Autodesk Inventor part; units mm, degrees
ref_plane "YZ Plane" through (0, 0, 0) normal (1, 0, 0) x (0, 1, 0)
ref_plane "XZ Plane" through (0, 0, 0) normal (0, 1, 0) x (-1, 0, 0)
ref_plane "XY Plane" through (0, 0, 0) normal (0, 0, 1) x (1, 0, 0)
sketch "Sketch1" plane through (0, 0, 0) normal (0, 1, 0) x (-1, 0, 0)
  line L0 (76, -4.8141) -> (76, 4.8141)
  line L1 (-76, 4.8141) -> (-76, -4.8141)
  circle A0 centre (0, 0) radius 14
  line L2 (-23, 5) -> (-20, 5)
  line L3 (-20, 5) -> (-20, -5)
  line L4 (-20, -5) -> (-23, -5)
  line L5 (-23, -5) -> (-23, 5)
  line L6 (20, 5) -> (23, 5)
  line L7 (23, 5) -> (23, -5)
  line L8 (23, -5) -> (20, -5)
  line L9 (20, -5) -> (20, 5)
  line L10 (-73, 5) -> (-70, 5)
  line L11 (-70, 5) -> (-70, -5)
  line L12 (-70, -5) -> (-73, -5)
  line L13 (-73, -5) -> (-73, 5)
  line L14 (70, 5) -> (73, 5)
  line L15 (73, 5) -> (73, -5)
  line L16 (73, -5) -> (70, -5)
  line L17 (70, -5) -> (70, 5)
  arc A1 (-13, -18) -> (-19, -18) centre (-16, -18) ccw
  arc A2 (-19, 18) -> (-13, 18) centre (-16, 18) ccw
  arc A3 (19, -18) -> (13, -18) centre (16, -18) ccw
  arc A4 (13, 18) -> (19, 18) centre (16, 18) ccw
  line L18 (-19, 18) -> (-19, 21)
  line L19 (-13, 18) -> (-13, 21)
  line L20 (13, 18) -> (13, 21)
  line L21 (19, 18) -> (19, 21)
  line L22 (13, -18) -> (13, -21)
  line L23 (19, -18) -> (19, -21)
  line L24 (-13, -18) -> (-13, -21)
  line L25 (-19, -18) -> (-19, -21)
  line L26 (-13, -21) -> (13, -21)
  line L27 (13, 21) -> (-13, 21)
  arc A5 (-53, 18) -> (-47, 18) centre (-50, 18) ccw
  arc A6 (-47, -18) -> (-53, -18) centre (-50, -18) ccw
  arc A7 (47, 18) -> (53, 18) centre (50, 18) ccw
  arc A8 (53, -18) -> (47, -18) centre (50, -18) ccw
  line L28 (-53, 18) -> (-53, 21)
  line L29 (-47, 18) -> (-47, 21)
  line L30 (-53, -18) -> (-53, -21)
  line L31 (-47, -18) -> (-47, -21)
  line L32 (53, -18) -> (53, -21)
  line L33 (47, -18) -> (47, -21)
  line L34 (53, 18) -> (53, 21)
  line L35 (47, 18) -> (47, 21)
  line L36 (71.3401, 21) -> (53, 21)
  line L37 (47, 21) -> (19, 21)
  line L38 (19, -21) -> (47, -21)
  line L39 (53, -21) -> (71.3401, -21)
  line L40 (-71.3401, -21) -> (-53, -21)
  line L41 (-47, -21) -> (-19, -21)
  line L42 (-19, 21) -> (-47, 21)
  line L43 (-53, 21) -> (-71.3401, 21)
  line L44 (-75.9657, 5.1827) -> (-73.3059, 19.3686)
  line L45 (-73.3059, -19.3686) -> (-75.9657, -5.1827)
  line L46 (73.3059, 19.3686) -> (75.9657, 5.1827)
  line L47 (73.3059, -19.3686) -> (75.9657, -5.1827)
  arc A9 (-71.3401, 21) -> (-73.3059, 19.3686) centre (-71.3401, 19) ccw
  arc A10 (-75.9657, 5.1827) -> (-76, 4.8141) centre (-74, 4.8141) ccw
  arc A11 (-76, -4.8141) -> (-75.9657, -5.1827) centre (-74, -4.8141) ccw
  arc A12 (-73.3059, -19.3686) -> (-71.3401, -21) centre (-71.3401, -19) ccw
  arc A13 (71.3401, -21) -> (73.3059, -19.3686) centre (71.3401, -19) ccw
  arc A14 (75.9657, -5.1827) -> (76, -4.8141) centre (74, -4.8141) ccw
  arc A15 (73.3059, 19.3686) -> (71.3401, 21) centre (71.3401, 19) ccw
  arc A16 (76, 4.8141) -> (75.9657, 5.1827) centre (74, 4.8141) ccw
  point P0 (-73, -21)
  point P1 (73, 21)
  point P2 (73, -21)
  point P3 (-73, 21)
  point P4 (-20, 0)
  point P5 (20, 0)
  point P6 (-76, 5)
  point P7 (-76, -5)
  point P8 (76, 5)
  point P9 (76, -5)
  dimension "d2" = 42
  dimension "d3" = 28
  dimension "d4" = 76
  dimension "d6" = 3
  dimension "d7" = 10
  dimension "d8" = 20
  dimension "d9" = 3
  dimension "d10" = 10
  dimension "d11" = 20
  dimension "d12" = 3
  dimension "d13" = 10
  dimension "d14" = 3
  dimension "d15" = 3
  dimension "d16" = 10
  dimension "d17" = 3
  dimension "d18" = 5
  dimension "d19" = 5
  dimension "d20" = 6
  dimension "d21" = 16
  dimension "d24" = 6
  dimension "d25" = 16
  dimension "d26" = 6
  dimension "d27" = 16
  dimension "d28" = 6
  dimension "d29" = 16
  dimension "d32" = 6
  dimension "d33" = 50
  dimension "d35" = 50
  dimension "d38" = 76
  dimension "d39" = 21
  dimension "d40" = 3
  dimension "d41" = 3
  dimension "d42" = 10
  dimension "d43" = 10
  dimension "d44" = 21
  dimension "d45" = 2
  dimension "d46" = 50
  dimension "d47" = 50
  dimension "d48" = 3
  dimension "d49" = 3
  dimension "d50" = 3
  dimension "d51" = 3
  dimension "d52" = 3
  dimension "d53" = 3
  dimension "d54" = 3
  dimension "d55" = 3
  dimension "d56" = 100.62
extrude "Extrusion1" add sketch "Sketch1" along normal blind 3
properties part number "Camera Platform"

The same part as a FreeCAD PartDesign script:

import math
import FreeCAD as App
import Part
import Sketcher
from FreeCAD import Vector
Q = App.Units.Quantity

doc = App.newDocument("Part")
body = doc.addObject("PartDesign::Body", "Body")

# Sketch on XZ plane
sketch1 = body.newObject("Sketcher::SketchObject", "Sketch")
sketch1.AttachmentSupport = (doc.getObject("XZ_Plane"), [""])
sketch1.MapMode = "FlatFace"
sketch1.addGeometry(Part.ArcOfCircle(Part.Circle(Vector(-73.99544, -4.813462, 0), Vector(0, 0, 1), 2.00456), math.radians(-179.981764), math.radians(-169.385561)), False)
sketch1.addGeometry(Part.LineSegment(Vector(-76, -4.8141, 0), Vector(-76, 4.8141, 0)), False)
sketch1.addGeometry(Part.ArcOfCircle(Part.Circle(Vector(-74.004578, 4.814312, 0), Vector(0, 0, 1), 1.995422), math.radians(169.361229), math.radians(180.006096)), False)
sketch1.addGeometry(Part.LineSegment(Vector(-75.9657, 5.1827, 0), Vector(-73.3059, 19.3686, 0)), False)
sketch1.addGeometry(Part.ArcOfCircle(Part.Circle(Vector(-71.3401, 19, 0), Vector(0, 0, 1), 2.000059), math.radians(90), math.radians(169.379993)), False)
sketch1.addGeometry(Part.LineSegment(Vector(-71.3401, 21, 0), Vector(-53, 21, 0)), False)
sketch1.addGeometry(Part.LineSegment(Vector(-53, 21, 0), Vector(-53, 18, 0)), False)
sketch1.addGeometry(Part.ArcOfCircle(Part.Circle(Vector(-50, 18, 0), Vector(0, 0, 1), 3), math.radians(180), math.radians(360)), False)
sketch1.addGeometry(Part.LineSegment(Vector(-47, 18, 0), Vector(-47, 21, 0)), False)
sketch1.addGeometry(Part.LineSegment(Vector(-47, 21, 0), Vector(-19, 21, 0)), False)
sketch1.addGeometry(Part.LineSegment(Vector(-19, 21, 0), Vector(-19, 18, 0)), False)
sketch1.addGeometry(Part.ArcOfCircle(Part.Circle(Vector(-16, 18, 0), Vector(0, 0, 1), 3), math.radians(180), math.radians(360)), False)
sketch1.addGeometry(Part.LineSegment(Vector(-13, 18, 0), Vector(-13, 21, 0)), False)
sketch1.addGeometry(Part.LineSegment(Vector(-13, 21, 0), Vector(13, 21, 0)), False)
sketch1.addGeometry(Part.LineSegment(Vector(13, 21, 0), Vector(13, 18, 0)), False)
sketch1.addGeometry(Part.ArcOfCircle(Part.Circle(Vector(16, 18, 0), Vector(0, 0, 1), 3), math.radians(180), math.radians(360)), False)
sketch1.addGeometry(Part.LineSegment(Vector(19, 18, 0), Vector(19, 21, 0)), False)
sketch1.addGeometry(Part.LineSegment(Vector(19, 21, 0), Vector(47, 21, 0)), False)
sketch1.addGeometry(Part.LineSegment(Vector(47, 21, 0), Vector(47, 18, 0)), False)
sketch1.addGeometry(Part.ArcOfCircle(Part.Circle(Vector(50, 18, 0), Vector(0, 0, 1), 3), math.radians(180), math.radians(360)), False)
sketch1.addGeometry(Part.LineSegment(Vector(53, 18, 0), Vector(53, 21, 0)), False)
sketch1.addGeometry(Part.LineSegment(Vector(53, 21, 0), Vector(71.3401, 21, 0)), False)
sketch1.addGeometry(Part.ArcOfCircle(Part.Circle(Vector(71.3401, 19, 0), Vector(0, 0, 1), 2), math.radians(10.620007), math.radians(90)), False)
sketch1.addGeometry(Part.LineSegment(Vector(73.3059, 19.3686, 0), Vector(75.9657, 5.1827, 0)), False)
sketch1.addGeometry(Part.ArcOfCircle(Part.Circle(Vector(73.99544, 4.813462, 0), Vector(0, 0, 1), 2.00456), math.radians(0.018236), math.radians(10.614439)), False)
sketch1.addGeometry(Part.LineSegment(Vector(76, 4.8141, 0), Vector(76, -4.8141, 0)), False)
sketch1.addGeometry(Part.ArcOfCircle(Part.Circle(Vector(74.004578, -4.814312, 0), Vector(0, 0, 1), 1.995422), math.radians(-10.638771), math.radians(0.006096)), False)
sketch1.addGeometry(Part.LineSegment(Vector(75.9657, -5.1827, 0), Vector(73.3059, -19.3686, 0)), False)
sketch1.addGeometry(Part.ArcOfCircle(Part.Circle(Vector(71.3401, -19, 0), Vector(0, 0, 1), 2.000059), math.radians(-90), math.radians(-10.620007)), False)
sketch1.addGeometry(Part.LineSegment(Vector(71.3401, -21, 0), Vector(53, -21, 0)), False)
sketch1.addGeometry(Part.LineSegment(Vector(53, -21, 0), Vector(53, -18, 0)), False)
sketch1.addGeometry(Part.ArcOfCircle(Part.Circle(Vector(50, -18, 0), Vector(0, 0, 1), 3), math.radians(0), math.radians(180)), False)
sketch1.addGeometry(Part.LineSegment(Vector(47, -18, 0), Vector(47, -21, 0)), False)
sketch1.addGeometry(Part.LineSegment(Vector(47, -21, 0), Vector(19, -21, 0)), False)
sketch1.addGeometry(Part.LineSegment(Vector(19, -21, 0), Vector(19, -18, 0)), False)
sketch1.addGeometry(Part.ArcOfCircle(Part.Circle(Vector(16, -18, 0), Vector(0, 0, 1), 3), math.radians(0), math.radians(180)), False)
sketch1.addGeometry(Part.LineSegment(Vector(13, -18, 0), Vector(13, -21, 0)), False)
sketch1.addGeometry(Part.LineSegment(Vector(13, -21, 0), Vector(-13, -21, 0)), False)
sketch1.addGeometry(Part.LineSegment(Vector(-13, -21, 0), Vector(-13, -18, 0)), False)
sketch1.addGeometry(Part.ArcOfCircle(Part.Circle(Vector(-16, -18, 0), Vector(0, 0, 1), 3), math.radians(0), math.radians(180)), False)
sketch1.addGeometry(Part.LineSegment(Vector(-19, -18, 0), Vector(-19, -21, 0)), False)
sketch1.addGeometry(Part.LineSegment(Vector(-19, -21, 0), Vector(-47, -21, 0)), False)
sketch1.addGeometry(Part.LineSegment(Vector(-47, -21, 0), Vector(-47, -18, 0)), False)
sketch1.addGeometry(Part.ArcOfCircle(Part.Circle(Vector(-50, -18, 0), Vector(0, 0, 1), 3), math.radians(0), math.radians(180)), False)
sketch1.addGeometry(Part.LineSegment(Vector(-53, -18, 0), Vector(-53, -21, 0)), False)
sketch1.addGeometry(Part.LineSegment(Vector(-53, -21, 0), Vector(-71.3401, -21, 0)), False)
sketch1.addGeometry(Part.ArcOfCircle(Part.Circle(Vector(-71.3401, -19, 0), Vector(0, 0, 1), 2), math.radians(-169.379993), math.radians(-90)), False)
sketch1.addGeometry(Part.LineSegment(Vector(-73.3059, -19.3686, 0), Vector(-75.9657, -5.1827, 0)), False)
sketch1.addGeometry(Part.LineSegment(Vector(73, -5, 0), Vector(73, 5, 0)), False)
sketch1.addGeometry(Part.LineSegment(Vector(73, 5, 0), Vector(70, 5, 0)), False)
sketch1.addGeometry(Part.LineSegment(Vector(70, 5, 0), Vector(70, -5, 0)), False)
sketch1.addGeometry(Part.LineSegment(Vector(70, -5, 0), Vector(73, -5, 0)), False)
sketch1.addGeometry(Part.LineSegment(Vector(23, -5, 0), Vector(23, 5, 0)), False)
sketch1.addGeometry(Part.LineSegment(Vector(23, 5, 0), Vector(20, 5, 0)), False)
sketch1.addGeometry(Part.LineSegment(Vector(20, 5, 0), Vector(20, -5, 0)), False)
sketch1.addGeometry(Part.LineSegment(Vector(20, -5, 0), Vector(23, -5, 0)), False)
sketch1.addGeometry(Part.Circle(Vector(0, 0, 0), Vector(0, 0, 1), 14), False)
sketch1.addGeometry(Part.LineSegment(Vector(-20, -5, 0), Vector(-20, 5, 0)), False)
sketch1.addGeometry(Part.LineSegment(Vector(-20, 5, 0), Vector(-23, 5, 0)), False)
sketch1.addGeometry(Part.LineSegment(Vector(-23, 5, 0), Vector(-23, -5, 0)), False)
sketch1.addGeometry(Part.LineSegment(Vector(-23, -5, 0), Vector(-20, -5, 0)), False)
sketch1.addGeometry(Part.LineSegment(Vector(-70, -5, 0), Vector(-70, 5, 0)), False)
sketch1.addGeometry(Part.LineSegment(Vector(-70, 5, 0), Vector(-73, 5, 0)), False)
sketch1.addGeometry(Part.LineSegment(Vector(-73, 5, 0), Vector(-73, -5, 0)), False)
sketch1.addGeometry(Part.LineSegment(Vector(-73, -5, 0), Vector(-70, -5, 0)), False)
sketch1.addConstraint(Sketcher.Constraint("Coincident", 0, 1, 1, 1))
sketch1.addConstraint(Sketcher.Constraint("Coincident", 1, 2, 2, 2))
sketch1.addConstraint(Sketcher.Constraint("Coincident", 2, 1, 3, 1))
sketch1.addConstraint(Sketcher.Constraint("Coincident", 3, 2, 4, 2))
sketch1.addConstraint(Sketcher.Constraint("Coincident", 4, 1, 5, 1))
sketch1.addConstraint(Sketcher.Constraint("Coincident", 5, 2, 6, 1))
sketch1.addConstraint(Sketcher.Constraint("Coincident", 6, 2, 7, 1))
sketch1.addConstraint(Sketcher.Constraint("Coincident", 7, 2, 8, 1))
sketch1.addConstraint(Sketcher.Constraint("Coincident", 8, 2, 9, 1))
sketch1.addConstraint(Sketcher.Constraint("Coincident", 9, 2, 10, 1))
sketch1.addConstraint(Sketcher.Constraint("Coincident", 10, 2, 11, 1))
sketch1.addConstraint(Sketcher.Constraint("Coincident", 11, 2, 12, 1))
sketch1.addConstraint(Sketcher.Constraint("Coincident", 12, 2, 13, 1))
sketch1.addConstraint(Sketcher.Constraint("Coincident", 13, 2, 14, 1))
sketch1.addConstraint(Sketcher.Constraint("Coincident", 14, 2, 15, 1))
sketch1.addConstraint(Sketcher.Constraint("Coincident", 15, 2, 16, 1))
sketch1.addConstraint(Sketcher.Constraint("Coincident", 16, 2, 17, 1))
sketch1.addConstraint(Sketcher.Constraint("Coincident", 17, 2, 18, 1))
sketch1.addConstraint(Sketcher.Constraint("Coincident", 18, 2, 19, 1))
sketch1.addConstraint(Sketcher.Constraint("Coincident", 19, 2, 20, 1))
sketch1.addConstraint(Sketcher.Constraint("Coincident", 20, 2, 21, 1))
sketch1.addConstraint(Sketcher.Constraint("Coincident", 21, 2, 22, 2))
sketch1.addConstraint(Sketcher.Constraint("Coincident", 22, 1, 23, 1))
sketch1.addConstraint(Sketcher.Constraint("Coincident", 23, 2, 24, 2))
sketch1.addConstraint(Sketcher.Constraint("Coincident", 24, 1, 25, 1))
sketch1.addConstraint(Sketcher.Constraint("Coincident", 25, 2, 26, 2))
sketch1.addConstraint(Sketcher.Constraint("Coincident", 26, 1, 27, 1))
sketch1.addConstraint(Sketcher.Constraint("Coincident", 27, 2, 28, 2))
sketch1.addConstraint(Sketcher.Constraint("Coincident", 28, 1, 29, 1))
sketch1.addConstraint(Sketcher.Constraint("Coincident", 29, 2, 30, 1))
sketch1.addConstraint(Sketcher.Constraint("Coincident", 30, 2, 31, 1))
sketch1.addConstraint(Sketcher.Constraint("Coincident", 31, 2, 32, 1))
sketch1.addConstraint(Sketcher.Constraint("Coincident", 32, 2, 33, 1))
sketch1.addConstraint(Sketcher.Constraint("Coincident", 33, 2, 34, 1))
sketch1.addConstraint(Sketcher.Constraint("Coincident", 34, 2, 35, 1))
sketch1.addConstraint(Sketcher.Constraint("Coincident", 35, 2, 36, 1))
sketch1.addConstraint(Sketcher.Constraint("Coincident", 36, 2, 37, 1))
sketch1.addConstraint(Sketcher.Constraint("Coincident", 37, 2, 38, 1))
sketch1.addConstraint(Sketcher.Constraint("Coincident", 38, 2, 39, 1))
sketch1.addConstraint(Sketcher.Constraint("Coincident", 39, 2, 40, 1))
sketch1.addConstraint(Sketcher.Constraint("Coincident", 40, 2, 41, 1))
sketch1.addConstraint(Sketcher.Constraint("Coincident", 41, 2, 42, 1))
sketch1.addConstraint(Sketcher.Constraint("Coincident", 42, 2, 43, 1))
sketch1.addConstraint(Sketcher.Constraint("Coincident", 43, 2, 44, 1))
sketch1.addConstraint(Sketcher.Constraint("Coincident", 44, 2, 45, 1))
sketch1.addConstraint(Sketcher.Constraint("Coincident", 45, 2, 46, 2))
sketch1.addConstraint(Sketcher.Constraint("Coincident", 46, 1, 47, 1))
sketch1.addConstraint(Sketcher.Constraint("Coincident", 47, 2, 0, 2))
sketch1.addConstraint(Sketcher.Constraint("Coincident", 48, 2, 49, 1))
sketch1.addConstraint(Sketcher.Constraint("Coincident", 49, 2, 50, 1))
sketch1.addConstraint(Sketcher.Constraint("Coincident", 50, 2, 51, 1))
sketch1.addConstraint(Sketcher.Constraint("Coincident", 51, 2, 48, 1))
sketch1.addConstraint(Sketcher.Constraint("Coincident", 52, 2, 53, 1))
sketch1.addConstraint(Sketcher.Constraint("Coincident", 53, 2, 54, 1))
sketch1.addConstraint(Sketcher.Constraint("Coincident", 54, 2, 55, 1))
sketch1.addConstraint(Sketcher.Constraint("Coincident", 55, 2, 52, 1))
sketch1.addConstraint(Sketcher.Constraint("Coincident", 57, 2, 58, 1))
sketch1.addConstraint(Sketcher.Constraint("Coincident", 58, 2, 59, 1))
sketch1.addConstraint(Sketcher.Constraint("Coincident", 59, 2, 60, 1))
sketch1.addConstraint(Sketcher.Constraint("Coincident", 60, 2, 57, 1))
sketch1.addConstraint(Sketcher.Constraint("Coincident", 61, 2, 62, 1))
sketch1.addConstraint(Sketcher.Constraint("Coincident", 62, 2, 63, 1))
sketch1.addConstraint(Sketcher.Constraint("Coincident", 63, 2, 64, 1))
sketch1.addConstraint(Sketcher.Constraint("Coincident", 64, 2, 61, 1))
sketch1.addConstraint(Sketcher.Constraint("Vertical", 1))
sketch1.addConstraint(Sketcher.Constraint("Horizontal", 5))
sketch1.addConstraint(Sketcher.Constraint("Vertical", 6))
sketch1.addConstraint(Sketcher.Constraint("Vertical", 8))
sketch1.addConstraint(Sketcher.Constraint("Horizontal", 9))
sketch1.addConstraint(Sketcher.Constraint("Vertical", 10))
sketch1.addConstraint(Sketcher.Constraint("Vertical", 12))
sketch1.addConstraint(Sketcher.Constraint("Horizontal", 13))
sketch1.addConstraint(Sketcher.Constraint("Vertical", 14))
sketch1.addConstraint(Sketcher.Constraint("Vertical", 16))
sketch1.addConstraint(Sketcher.Constraint("Horizontal", 17))
sketch1.addConstraint(Sketcher.Constraint("Vertical", 18))
sketch1.addConstraint(Sketcher.Constraint("Vertical", 20))
sketch1.addConstraint(Sketcher.Constraint("Horizontal", 21))
sketch1.addConstraint(Sketcher.Constraint("Vertical", 25))
sketch1.addConstraint(Sketcher.Constraint("Horizontal", 29))
sketch1.addConstraint(Sketcher.Constraint("Vertical", 30))
sketch1.addConstraint(Sketcher.Constraint("Vertical", 32))
sketch1.addConstraint(Sketcher.Constraint("Horizontal", 33))
sketch1.addConstraint(Sketcher.Constraint("Vertical", 34))
sketch1.addConstraint(Sketcher.Constraint("Vertical", 36))
sketch1.addConstraint(Sketcher.Constraint("Horizontal", 37))
sketch1.addConstraint(Sketcher.Constraint("Vertical", 38))
sketch1.addConstraint(Sketcher.Constraint("Vertical", 40))
sketch1.addConstraint(Sketcher.Constraint("Horizontal", 41))
sketch1.addConstraint(Sketcher.Constraint("Vertical", 42))
sketch1.addConstraint(Sketcher.Constraint("Vertical", 44))
sketch1.addConstraint(Sketcher.Constraint("Horizontal", 45))
sketch1.addConstraint(Sketcher.Constraint("Vertical", 48))
sketch1.addConstraint(Sketcher.Constraint("Horizontal", 49))
sketch1.addConstraint(Sketcher.Constraint("Vertical", 50))
sketch1.addConstraint(Sketcher.Constraint("Horizontal", 51))
sketch1.addConstraint(Sketcher.Constraint("Vertical", 52))
sketch1.addConstraint(Sketcher.Constraint("Horizontal", 53))
sketch1.addConstraint(Sketcher.Constraint("Vertical", 54))
sketch1.addConstraint(Sketcher.Constraint("Horizontal", 55))
sketch1.addConstraint(Sketcher.Constraint("Vertical", 57))
sketch1.addConstraint(Sketcher.Constraint("Horizontal", 58))
sketch1.addConstraint(Sketcher.Constraint("Vertical", 59))
sketch1.addConstraint(Sketcher.Constraint("Horizontal", 60))
sketch1.addConstraint(Sketcher.Constraint("Vertical", 61))
sketch1.addConstraint(Sketcher.Constraint("Horizontal", 62))
sketch1.addConstraint(Sketcher.Constraint("Vertical", 63))
sketch1.addConstraint(Sketcher.Constraint("Horizontal", 64))
sketch1.addConstraint(Sketcher.Constraint("Coincident", 56, 3, -1, 1))
sketch1.addConstraint(Sketcher.Constraint("Diameter", 56, Q("28 mm")))
sketch1.addConstraint(Sketcher.Constraint("Radius", 4, Q("2 mm")))
sketch1.addConstraint(Sketcher.Constraint("Radius", 7, Q("3 mm")))
sketch1.addConstraint(Sketcher.Constraint("Radius", 11, Q("3 mm")))
sketch1.addConstraint(Sketcher.Constraint("Radius", 15, Q("3 mm")))
sketch1.addConstraint(Sketcher.Constraint("Radius", 19, Q("3 mm")))
sketch1.addConstraint(Sketcher.Constraint("Radius", 22, Q("2 mm")))
sketch1.addConstraint(Sketcher.Constraint("Radius", 28, Q("2 mm")))
sketch1.addConstraint(Sketcher.Constraint("Radius", 31, Q("3 mm")))
sketch1.addConstraint(Sketcher.Constraint("Radius", 35, Q("3 mm")))
sketch1.addConstraint(Sketcher.Constraint("Radius", 39, Q("3 mm")))
sketch1.addConstraint(Sketcher.Constraint("Radius", 43, Q("3 mm")))
sketch1.addConstraint(Sketcher.Constraint("Radius", 46, Q("2 mm")))
sketch1.addConstraint(Sketcher.Constraint("DistanceX", 9, 1, 9, 2, Q("28 mm")))
sketch1.addConstraint(Sketcher.Constraint("DistanceX", 17, 1, 17, 2, Q("28 mm")))
sketch1.addConstraint(Sketcher.Constraint("DistanceX", 33, 2, 33, 1, Q("28 mm")))
sketch1.addConstraint(Sketcher.Constraint("DistanceX", 41, 2, 41, 1, Q("28 mm")))
sketch1.addConstraint(Sketcher.Constraint("DistanceX", 49, 2, 49, 1, Q("3 mm")))
sketch1.addConstraint(Sketcher.Constraint("DistanceX", 53, 2, 53, 1, Q("3 mm")))
sketch1.addConstraint(Sketcher.Constraint("DistanceX", 58, 2, 58, 1, Q("3 mm")))
sketch1.addConstraint(Sketcher.Constraint("DistanceX", 62, 2, 62, 1, Q("3 mm")))
sketch1.addConstraint(Sketcher.Constraint("DistanceY", 6, 2, 6, 1, Q("3 mm")))
sketch1.addConstraint(Sketcher.Constraint("DistanceY", 8, 1, 8, 2, Q("3 mm")))
sketch1.addConstraint(Sketcher.Constraint("DistanceY", 10, 2, 10, 1, Q("3 mm")))
sketch1.addConstraint(Sketcher.Constraint("DistanceY", 12, 1, 12, 2, Q("3 mm")))
sketch1.addConstraint(Sketcher.Constraint("DistanceY", 14, 2, 14, 1, Q("3 mm")))
sketch1.addConstraint(Sketcher.Constraint("DistanceY", 16, 1, 16, 2, Q("3 mm")))
sketch1.addConstraint(Sketcher.Constraint("DistanceY", 18, 2, 18, 1, Q("3 mm")))
sketch1.addConstraint(Sketcher.Constraint("DistanceY", 20, 1, 20, 2, Q("3 mm")))
sketch1.addConstraint(Sketcher.Constraint("DistanceY", 30, 1, 30, 2, Q("3 mm")))
sketch1.addConstraint(Sketcher.Constraint("DistanceY", 32, 2, 32, 1, Q("3 mm")))
sketch1.addConstraint(Sketcher.Constraint("DistanceY", 34, 1, 34, 2, Q("3 mm")))
sketch1.addConstraint(Sketcher.Constraint("DistanceY", 36, 2, 36, 1, Q("3 mm")))
sketch1.addConstraint(Sketcher.Constraint("DistanceY", 38, 1, 38, 2, Q("3 mm")))
sketch1.addConstraint(Sketcher.Constraint("DistanceY", 40, 2, 40, 1, Q("3 mm")))
sketch1.addConstraint(Sketcher.Constraint("DistanceY", 42, 1, 42, 2, Q("3 mm")))
sketch1.addConstraint(Sketcher.Constraint("DistanceY", 44, 2, 44, 1, Q("3 mm")))
sketch1.addConstraint(Sketcher.Constraint("DistanceY", 48, 1, 48, 2, Q("10 mm")))
sketch1.addConstraint(Sketcher.Constraint("DistanceY", 52, 1, 52, 2, Q("10 mm")))
sketch1.addConstraint(Sketcher.Constraint("DistanceY", 57, 1, 57, 2, Q("10 mm")))
sketch1.addConstraint(Sketcher.Constraint("DistanceY", 61, 1, 61, 2, Q("10 mm")))
sketch1.addConstraint(Sketcher.Constraint("DistanceX", 7, 3, -1, 1, Q("50 mm")))
sketch1.addConstraint(Sketcher.Constraint("DistanceX", -1, 1, 15, 3, Q("16 mm")))
sketch1.addConstraint(Sketcher.Constraint("DistanceX", -1, 1, 31, 3, Q("50 mm")))
sketch1.addConstraint(Sketcher.Constraint("DistanceX", 39, 3, -1, 1, Q("16 mm")))
sketch1.addConstraint(Sketcher.Constraint("DistanceX", 0, 1, -1, 1, Q("76 mm")))
sketch1.addConstraint(Sketcher.Constraint("DistanceY", -1, 1, 4, 1, Q("21 mm")))
sketch1.addConstraint(Sketcher.Constraint("DistanceY", -1, 1, 8, 2, Q("21 mm")))
sketch1.addConstraint(Sketcher.Constraint("DistanceY", -1, 1, 12, 2, Q("21 mm")))
sketch1.addConstraint(Sketcher.Constraint("DistanceY", -1, 1, 16, 2, Q("21 mm")))
sketch1.addConstraint(Sketcher.Constraint("DistanceY", -1, 1, 20, 2, Q("21 mm")))
sketch1.addConstraint(Sketcher.Constraint("DistanceX", -1, 1, 24, 1, Q("76 mm")))
sketch1.addConstraint(Sketcher.Constraint("DistanceY", 28, 1, -1, 1, Q("21 mm")))
sketch1.addConstraint(Sketcher.Constraint("DistanceY", 32, 2, -1, 1, Q("21 mm")))
sketch1.addConstraint(Sketcher.Constraint("DistanceY", 36, 2, -1, 1, Q("21 mm")))
sketch1.addConstraint(Sketcher.Constraint("DistanceY", 40, 2, -1, 1, Q("21 mm")))
sketch1.addConstraint(Sketcher.Constraint("DistanceY", 44, 2, -1, 1, Q("21 mm")))
sketch1.addConstraint(Sketcher.Constraint("DistanceY", -1, 1, 48, 2, Q("5 mm")))
sketch1.addConstraint(Sketcher.Constraint("DistanceY", -1, 1, 52, 2, Q("5 mm")))
sketch1.addConstraint(Sketcher.Constraint("DistanceX", -1, 1, 53, 2, Q("20 mm")))
sketch1.addConstraint(Sketcher.Constraint("DistanceX", 57, 2, -1, 1, Q("20 mm")))
sketch1.addConstraint(Sketcher.Constraint("DistanceY", -1, 1, 57, 2, Q("5 mm")))
sketch1.addConstraint(Sketcher.Constraint("DistanceY", -1, 1, 61, 2, Q("5 mm")))
sketch1.addConstraint(Sketcher.Constraint("DistanceY", -1, 1, 7, 3, Q("18 mm")))
sketch1.addConstraint(Sketcher.Constraint("DistanceY", -1, 1, 11, 3, Q("18 mm")))
sketch1.addConstraint(Sketcher.Constraint("DistanceY", -1, 1, 15, 3, Q("18 mm")))
sketch1.addConstraint(Sketcher.Constraint("DistanceY", -1, 1, 19, 3, Q("18 mm")))
sketch1.addConstraint(Sketcher.Constraint("DistanceY", 31, 3, -1, 1, Q("18 mm")))
sketch1.addConstraint(Sketcher.Constraint("DistanceY", 35, 3, -1, 1, Q("18 mm")))
sketch1.addConstraint(Sketcher.Constraint("DistanceY", 39, 3, -1, 1, Q("18 mm")))
sketch1.addConstraint(Sketcher.Constraint("DistanceY", 43, 3, -1, 1, Q("18 mm")))
sketch1.addConstraint(Sketcher.Constraint("DistanceX", -1, 1, 48, 2, Q("73 mm")))
sketch1.addConstraint(Sketcher.Constraint("DistanceX", 61, 2, -1, 1, Q("70 mm")))
sketch1.addConstraint(Sketcher.Constraint("DistanceX", 5, 1, 5, 2, Q("18.34 mm")))
sketch1.addConstraint(Sketcher.Constraint("DistanceX", 21, 1, 21, 2, Q("18.34 mm")))
sketch1.addConstraint(Sketcher.Constraint("DistanceX", 29, 2, 29, 1, Q("18.34 mm")))
sketch1.addConstraint(Sketcher.Constraint("DistanceX", 45, 2, 45, 1, Q("18.34 mm")))
sketch1.addConstraint(Sketcher.Constraint("Radius", 0, Q("2.0046 mm")))
sketch1.addConstraint(Sketcher.Constraint("Radius", 2, Q("1.9954 mm")))
sketch1.addConstraint(Sketcher.Constraint("Radius", 24, Q("2.0046 mm")))
sketch1.addConstraint(Sketcher.Constraint("Radius", 26, Q("1.9954 mm")))
sketch1.addConstraint(Sketcher.Constraint("DistanceX", 4, 3, -1, 1, Q("71.34 mm")))
sketch1.addConstraint(Sketcher.Constraint("DistanceX", -1, 1, 22, 3, Q("71.34 mm")))
sketch1.addConstraint(Sketcher.Constraint("DistanceX", -1, 1, 28, 3, Q("71.34 mm")))
sketch1.addConstraint(Sketcher.Constraint("DistanceX", 46, 3, -1, 1, Q("71.34 mm")))
sketch1.addConstraint(Sketcher.Constraint("Distance", 3, Q("14.433 mm")))
sketch1.addConstraint(Sketcher.Constraint("Distance", 23, Q("14.433 mm")))
sketch1.addConstraint(Sketcher.Constraint("Distance", 27, Q("14.433 mm")))
sketch1.addConstraint(Sketcher.Constraint("Distance", 47, Q("14.433 mm")))
sketch1.addConstraint(Sketcher.Constraint("DistanceY", 1, 1, 1, 2, Q("9.6282 mm")))
sketch1.addConstraint(Sketcher.Constraint("DistanceY", 25, 2, 25, 1, Q("9.6282 mm")))
sketch1.addConstraint(Sketcher.Constraint("DistanceY", 0, 1, -1, 1, Q("4.814 mm")))
sketch1.addConstraint(Sketcher.Constraint("DistanceX", 3, 2, -1, 1, Q("73.306 mm")))
sketch1.addConstraint(Sketcher.Constraint("DistanceY", -1, 1, 24, 1, Q("4.814 mm")))
sketch1.addConstraint(Sketcher.Constraint("DistanceX", -1, 1, 27, 2, Q("73.306 mm")))
sketch1.addConstraint(Sketcher.Constraint("DistanceY", 0, 3, -1, 1, Q("4.8135 mm")))
sketch1.addConstraint(Sketcher.Constraint("DistanceY", -1, 1, 2, 3, Q("4.8143 mm")))
sketch1.addConstraint(Sketcher.Constraint("DistanceY", -1, 1, 24, 3, Q("4.8135 mm")))
sketch1.addConstraint(Sketcher.Constraint("DistanceY", 26, 3, -1, 1, Q("4.8143 mm")))
sketch1.addConstraint(Sketcher.Constraint("DistanceX", -1, 1, 22, 1, Q("73.3058 mm")))
sketch1.addConstraint(Sketcher.Constraint("DistanceX", 46, 1, -1, 1, Q("73.3058 mm")))
pad1 = body.newObject("PartDesign::Pad", "Pad")
pad1.Profile = sketch1
pad1.Length = 3
pad1.Reversed = True

doc.recompute()
